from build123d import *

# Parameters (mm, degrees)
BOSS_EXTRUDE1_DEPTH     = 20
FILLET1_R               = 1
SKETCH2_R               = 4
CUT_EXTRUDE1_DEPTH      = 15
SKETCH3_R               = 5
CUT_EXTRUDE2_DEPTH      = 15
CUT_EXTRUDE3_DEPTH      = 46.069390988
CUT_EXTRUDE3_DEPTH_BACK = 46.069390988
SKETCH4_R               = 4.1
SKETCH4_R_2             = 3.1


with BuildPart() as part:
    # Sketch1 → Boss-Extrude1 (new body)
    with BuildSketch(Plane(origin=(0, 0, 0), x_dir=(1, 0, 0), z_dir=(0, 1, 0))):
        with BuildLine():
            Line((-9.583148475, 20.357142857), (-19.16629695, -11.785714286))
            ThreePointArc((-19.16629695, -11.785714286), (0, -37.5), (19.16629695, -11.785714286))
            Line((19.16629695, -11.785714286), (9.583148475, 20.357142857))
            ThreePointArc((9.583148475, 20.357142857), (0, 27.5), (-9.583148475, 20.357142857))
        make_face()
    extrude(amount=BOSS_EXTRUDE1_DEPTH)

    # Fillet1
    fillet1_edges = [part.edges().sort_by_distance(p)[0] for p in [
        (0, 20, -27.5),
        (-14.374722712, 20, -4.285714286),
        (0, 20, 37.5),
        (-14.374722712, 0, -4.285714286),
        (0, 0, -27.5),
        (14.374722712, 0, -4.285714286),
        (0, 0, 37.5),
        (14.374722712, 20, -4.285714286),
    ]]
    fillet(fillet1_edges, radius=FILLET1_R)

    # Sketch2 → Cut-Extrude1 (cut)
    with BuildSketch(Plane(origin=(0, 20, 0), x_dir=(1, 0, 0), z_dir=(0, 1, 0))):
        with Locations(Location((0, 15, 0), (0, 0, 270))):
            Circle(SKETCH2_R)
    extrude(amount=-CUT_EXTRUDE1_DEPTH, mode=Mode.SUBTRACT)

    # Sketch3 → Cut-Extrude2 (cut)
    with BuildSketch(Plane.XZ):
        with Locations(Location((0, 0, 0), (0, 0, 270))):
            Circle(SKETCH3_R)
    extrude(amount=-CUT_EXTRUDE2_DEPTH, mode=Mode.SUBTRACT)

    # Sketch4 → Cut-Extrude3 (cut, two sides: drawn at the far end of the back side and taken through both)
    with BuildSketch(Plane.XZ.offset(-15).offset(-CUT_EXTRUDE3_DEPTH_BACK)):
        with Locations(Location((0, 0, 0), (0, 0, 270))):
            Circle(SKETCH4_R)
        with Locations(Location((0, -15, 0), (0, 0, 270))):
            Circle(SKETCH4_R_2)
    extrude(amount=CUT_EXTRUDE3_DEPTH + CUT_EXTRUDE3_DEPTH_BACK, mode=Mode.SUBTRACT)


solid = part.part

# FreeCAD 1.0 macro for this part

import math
import FreeCAD as App
import Part
import Sketcher

V = App.Vector
Q = App.Units.Quantity


def edges_at(feature, points):
    """Names of the edges that pass closest to the given points."""
    edges = feature.Shape.Edges
    near = lambda p: min(range(len(edges)), key=lambda i: edges[i].distToShape(Part.Vertex(*p))[0])
    return sorted({f"Edge{near(p) + 1}" for p in points})

doc = App.newDocument("Part")
body = doc.addObject("PartDesign::Body", "Body")

sketch1 = body.newObject("Sketcher::SketchObject", "Sketch")
sketch1.AttachmentSupport = (doc.getObject("XZ_Plane"), [""])
sketch1.MapMode = "FlatFace"
sketch1.addGeometry([
    Part.LineSegment(V(-9.583148, -20.357143, 0), V(-19.166297, 11.785714, 0)),
    Part.ArcOfCircle(Part.Circle(V(0, 17.5, 0), V(0, 0, 1), 20), math.radians(-16.60155), math.radians(196.60155)),
    Part.LineSegment(V(19.166297, 11.785714, 0), V(9.583148, -20.357143, 0)),
    Part.ArcOfCircle(Part.Circle(V(0, -17.5, 0), V(0, 0, 1), 10), math.radians(-163.39845), math.radians(-16.60155)),
], False)
sketch1.addConstraint([
    Sketcher.Constraint("Tangent", 0, 2, 1, 2),
    Sketcher.Constraint("Tangent", 1, 1, 2, 1),
    Sketcher.Constraint("Tangent", 2, 2, 3, 2),
    Sketcher.Constraint("Tangent", 3, 1, 0, 1),
    Sketcher.Constraint("Symmetric", 1, 3, 3, 3, -1, 1),
    Sketcher.Constraint("PointOnObject", 1, 3, -2),
    Sketcher.Constraint("Radius", 1, Q("20 mm")),
    Sketcher.Constraint("Radius", 3, Q("10 mm")),
    Sketcher.Constraint("DistanceY", 3, 3, 1, 3, Q("35 mm")),
])
pad1 = body.newObject("PartDesign::Pad", "Pad")
pad1.Profile = sketch1
pad1.Length = 20
pad1.Reversed = True
doc.recompute()

fillet = body.newObject("PartDesign::Fillet", "Fillet")
fillet.Base = (pad1, edges_at(pad1, [
    (0, 20, -27.5),
    (-14.375, 20, -4.286),
    (0, 20, 37.5),
    (-14.375, 0, -4.286),
    (0, 0, -27.5),
    (14.375, 0, -4.286),
    (0, 0, 37.5),
    (14.375, 20, -4.286),
]))
fillet.Radius = 1

sketch2 = body.newObject("Sketcher::SketchObject", "Sketch001")
sketch2.AttachmentSupport = (doc.getObject("XZ_Plane"), [""])
sketch2.MapMode = "FlatFace"
sketch2.AttachmentOffset = App.Placement(V(0, 0, -20), App.Rotation())
sketch2.addGeometry(Part.Circle(V(0, -15, 0), V(0, 0, 1), 4), False)
sketch2.addConstraint([
    Sketcher.Constraint("PointOnObject", 0, 3, -2),
    Sketcher.Constraint("Diameter", 0, Q("8 mm")),
    Sketcher.Constraint("DistanceY", 0, 3, -1, 1, Q("15 mm")),
])
pocket1 = body.newObject("PartDesign::Pocket", "Pocket")
pocket1.Profile = sketch2
pocket1.Length = 15
pocket1.Reversed = True

sketch3 = body.newObject("Sketcher::SketchObject", "Sketch002")
sketch3.AttachmentSupport = (doc.getObject("XZ_Plane"), [""])
sketch3.MapMode = "FlatFace"
sketch3.addGeometry(Part.Circle(V(0, 0, 0), V(0, 0, 1), 5), False)
sketch3.addConstraint([
    Sketcher.Constraint("Coincident", 0, 3, -1, 1),
    Sketcher.Constraint("Diameter", 0, Q("10 mm")),
])
pocket2 = body.newObject("PartDesign::Pocket", "Pocket001")
pocket2.Profile = sketch3
pocket2.Length = 15

sketch4 = body.newObject("Sketcher::SketchObject", "Sketch003")
sketch4.AttachmentSupport = (doc.getObject("XZ_Plane"), [""])
sketch4.MapMode = "FlatFace"
sketch4.AttachmentOffset = App.Placement(V(0, 0, -15), App.Rotation())
sketch4.addGeometry([
    Part.Circle(V(0, 0, 0), V(0, 0, 1), 4.1),
    Part.Circle(V(0, -15, 0), V(0, 0, 1), 3.1),
], False)
sketch4.addConstraint([
    Sketcher.Constraint("Coincident", 0, 3, -1, 1),
    Sketcher.Constraint("PointOnObject", 1, 3, -2),
    Sketcher.Constraint("Diameter", 0, Q("8.2 mm")),
    Sketcher.Constraint("Diameter", 1, Q("6.2 mm")),
    Sketcher.Constraint("DistanceY", 1, 3, -1, 1, Q("15 mm")),
])
pocket3 = body.newObject("PartDesign::Pocket", "Pocket002")
pocket3.Profile = sketch4
pocket3.Type = "ThroughAll"
pocket3.Midplane = True

doc.recompute()
